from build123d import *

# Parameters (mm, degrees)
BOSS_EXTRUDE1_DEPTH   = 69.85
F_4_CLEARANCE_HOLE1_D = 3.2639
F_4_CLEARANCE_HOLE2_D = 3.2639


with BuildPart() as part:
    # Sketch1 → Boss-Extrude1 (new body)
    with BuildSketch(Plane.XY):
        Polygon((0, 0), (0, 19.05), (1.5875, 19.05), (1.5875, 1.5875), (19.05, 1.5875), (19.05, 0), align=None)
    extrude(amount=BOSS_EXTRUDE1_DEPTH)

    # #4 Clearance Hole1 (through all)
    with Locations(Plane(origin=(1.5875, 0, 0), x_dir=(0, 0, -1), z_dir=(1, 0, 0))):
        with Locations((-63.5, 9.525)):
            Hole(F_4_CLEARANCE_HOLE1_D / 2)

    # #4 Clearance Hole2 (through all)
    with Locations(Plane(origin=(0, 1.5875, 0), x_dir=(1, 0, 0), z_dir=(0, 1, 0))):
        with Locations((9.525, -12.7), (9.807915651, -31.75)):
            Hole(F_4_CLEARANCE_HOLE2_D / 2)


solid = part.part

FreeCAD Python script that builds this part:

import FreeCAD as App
import Part
import Sketcher
from FreeCAD import Vector
Q = App.Units.Quantity

doc = App.newDocument("Part")
body = doc.addObject("PartDesign::Body", "Body")

sketch1 = body.newObject("Sketcher::SketchObject", "Sketch")
sketch1.AttachmentSupport = (doc.getObject("XY_Plane"), [""])
sketch1.MapMode = "FlatFace"
sketch1.addGeometry(Part.LineSegment(Vector(0, 19.1, 0), Vector(0, 0, 0)), False)
sketch1.addGeometry(Part.LineSegment(Vector(0, 0, 0), Vector(19.1, 0, 0)), False)
sketch1.addGeometry(Part.LineSegment(Vector(19.1, 0, 0), Vector(19.1, 1.6, 0)), False)
sketch1.addGeometry(Part.LineSegment(Vector(19.1, 1.6, 0), Vector(1.6, 1.6, 0)), False)
sketch1.addGeometry(Part.LineSegment(Vector(1.6, 1.6, 0), Vector(1.6, 19.1, 0)), False)
sketch1.addGeometry(Part.LineSegment(Vector(1.6, 19.1, 0), Vector(0, 19.1, 0)), False)
sketch1.addConstraint(Sketcher.Constraint("Coincident", 0, 2, 1, 1))
sketch1.addConstraint(Sketcher.Constraint("Coincident", 1, 2, 2, 1))
sketch1.addConstraint(Sketcher.Constraint("Coincident", 2, 2, 3, 1))
sketch1.addConstraint(Sketcher.Constraint("Coincident", 3, 2, 4, 1))
sketch1.addConstraint(Sketcher.Constraint("Coincident", 4, 2, 5, 1))
sketch1.addConstraint(Sketcher.Constraint("Coincident", 5, 2, 0, 1))
sketch1.addConstraint(Sketcher.Constraint("Vertical", 0))
sketch1.addConstraint(Sketcher.Constraint("Horizontal", 1))
sketch1.addConstraint(Sketcher.Constraint("Vertical", 2))
sketch1.addConstraint(Sketcher.Constraint("Horizontal", 3))
sketch1.addConstraint(Sketcher.Constraint("Vertical", 4))
sketch1.addConstraint(Sketcher.Constraint("Horizontal", 5))
sketch1.addConstraint(Sketcher.Constraint("Coincident", 0, 2, -1, 1))
sketch1.addConstraint(Sketcher.Constraint("Equal", 1, 0))
sketch1.addConstraint(Sketcher.Constraint("Equal", 5, 2))
sketch1.addConstraint(Sketcher.Constraint("DistanceX", 1, 1, 1, 2, Q("0.75 in")))
sketch1.addConstraint(Sketcher.Constraint("DistanceX", 3, 2, 3, 1, Q("0.6875 in")))
pad1 = body.newObject("PartDesign::Pad", "Pad")
pad1.Profile = sketch1
pad1.Length = Q("2.75 in")

sketch2 = body.newObject("Sketcher::SketchObject", "Sketch001")
sketch2.AttachmentSupport = (doc.getObject("YZ_Plane"), [""])
sketch2.MapMode = "FlatFace"
sketch2.AttachmentOffset = App.Placement(Vector(0, 0, 0.0625 * 25.4), App.Rotation())
sketch2.addGeometry(Part.Circle(Vector(9.5, 63.5, 0), Vector(0, 0, 1), 1.6), False)
sketch2.addConstraint(Sketcher.Constraint("Diameter", 0, Q("0.1285 in")))
sketch2.addConstraint(Sketcher.Constraint("DistanceY", -1, 1, 0, 3, Q("2.5 in")))
sketch2.addConstraint(Sketcher.Constraint("DistanceX", -1, 1, 0, 3, Q("0.375 in")))
doc.recompute()
hole = body.newObject("PartDesign::Hole", "Hole")
hole.Profile = sketch2
hole.ThreadType = "None"
hole.Diameter = Q("0.1285 in")
hole.DepthType = "ThroughAll"

sketch3 = body.newObject("Sketcher::SketchObject", "Sketch002")
sketch3.AttachmentSupport = (doc.getObject("XZ_Plane"), [""])
sketch3.MapMode = "FlatFace"
sketch3.AttachmentOffset = App.Placement(Vector(0, 0, -0.0625 * 25.4), App.Rotation())
sketch3.addGeometry(Part.Circle(Vector(9.5, 12.7, 0), Vector(0, 0, 1), 1.6), False)
sketch3.addGeometry(Part.Circle(Vector(9.8, 31.8, 0), Vector(0, 0, 1), 1.6), False)
sketch3.addConstraint(Sketcher.Constraint("Equal", 0, 1))
sketch3.addConstraint(Sketcher.Constraint("Diameter", 0, Q("0.1285 in")))
sketch3.addConstraint(Sketcher.Constraint("DistanceY", -1, 1, 0, 3, Q("0.5 in")))
sketch3.addConstraint(Sketcher.Constraint("DistanceY", -1, 1, 1, 3, Q("1.25 in")))
sketch3.addConstraint(Sketcher.Constraint("DistanceX", -1, 1, 0, 3, Q("0.375 in")))
sketch3.addConstraint(Sketcher.Constraint("DistanceX", -1, 1, 1, 3, Q("9.807916 mm")))
doc.recompute()
hole2 = body.newObject("PartDesign::Hole", "Hole001")
hole2.Profile = sketch3
hole2.ThreadType = "None"
hole2.Diameter = Q("0.1285 in")
hole2.DepthType = "ThroughAll"
hole2.Reversed = True

doc.recompute()
